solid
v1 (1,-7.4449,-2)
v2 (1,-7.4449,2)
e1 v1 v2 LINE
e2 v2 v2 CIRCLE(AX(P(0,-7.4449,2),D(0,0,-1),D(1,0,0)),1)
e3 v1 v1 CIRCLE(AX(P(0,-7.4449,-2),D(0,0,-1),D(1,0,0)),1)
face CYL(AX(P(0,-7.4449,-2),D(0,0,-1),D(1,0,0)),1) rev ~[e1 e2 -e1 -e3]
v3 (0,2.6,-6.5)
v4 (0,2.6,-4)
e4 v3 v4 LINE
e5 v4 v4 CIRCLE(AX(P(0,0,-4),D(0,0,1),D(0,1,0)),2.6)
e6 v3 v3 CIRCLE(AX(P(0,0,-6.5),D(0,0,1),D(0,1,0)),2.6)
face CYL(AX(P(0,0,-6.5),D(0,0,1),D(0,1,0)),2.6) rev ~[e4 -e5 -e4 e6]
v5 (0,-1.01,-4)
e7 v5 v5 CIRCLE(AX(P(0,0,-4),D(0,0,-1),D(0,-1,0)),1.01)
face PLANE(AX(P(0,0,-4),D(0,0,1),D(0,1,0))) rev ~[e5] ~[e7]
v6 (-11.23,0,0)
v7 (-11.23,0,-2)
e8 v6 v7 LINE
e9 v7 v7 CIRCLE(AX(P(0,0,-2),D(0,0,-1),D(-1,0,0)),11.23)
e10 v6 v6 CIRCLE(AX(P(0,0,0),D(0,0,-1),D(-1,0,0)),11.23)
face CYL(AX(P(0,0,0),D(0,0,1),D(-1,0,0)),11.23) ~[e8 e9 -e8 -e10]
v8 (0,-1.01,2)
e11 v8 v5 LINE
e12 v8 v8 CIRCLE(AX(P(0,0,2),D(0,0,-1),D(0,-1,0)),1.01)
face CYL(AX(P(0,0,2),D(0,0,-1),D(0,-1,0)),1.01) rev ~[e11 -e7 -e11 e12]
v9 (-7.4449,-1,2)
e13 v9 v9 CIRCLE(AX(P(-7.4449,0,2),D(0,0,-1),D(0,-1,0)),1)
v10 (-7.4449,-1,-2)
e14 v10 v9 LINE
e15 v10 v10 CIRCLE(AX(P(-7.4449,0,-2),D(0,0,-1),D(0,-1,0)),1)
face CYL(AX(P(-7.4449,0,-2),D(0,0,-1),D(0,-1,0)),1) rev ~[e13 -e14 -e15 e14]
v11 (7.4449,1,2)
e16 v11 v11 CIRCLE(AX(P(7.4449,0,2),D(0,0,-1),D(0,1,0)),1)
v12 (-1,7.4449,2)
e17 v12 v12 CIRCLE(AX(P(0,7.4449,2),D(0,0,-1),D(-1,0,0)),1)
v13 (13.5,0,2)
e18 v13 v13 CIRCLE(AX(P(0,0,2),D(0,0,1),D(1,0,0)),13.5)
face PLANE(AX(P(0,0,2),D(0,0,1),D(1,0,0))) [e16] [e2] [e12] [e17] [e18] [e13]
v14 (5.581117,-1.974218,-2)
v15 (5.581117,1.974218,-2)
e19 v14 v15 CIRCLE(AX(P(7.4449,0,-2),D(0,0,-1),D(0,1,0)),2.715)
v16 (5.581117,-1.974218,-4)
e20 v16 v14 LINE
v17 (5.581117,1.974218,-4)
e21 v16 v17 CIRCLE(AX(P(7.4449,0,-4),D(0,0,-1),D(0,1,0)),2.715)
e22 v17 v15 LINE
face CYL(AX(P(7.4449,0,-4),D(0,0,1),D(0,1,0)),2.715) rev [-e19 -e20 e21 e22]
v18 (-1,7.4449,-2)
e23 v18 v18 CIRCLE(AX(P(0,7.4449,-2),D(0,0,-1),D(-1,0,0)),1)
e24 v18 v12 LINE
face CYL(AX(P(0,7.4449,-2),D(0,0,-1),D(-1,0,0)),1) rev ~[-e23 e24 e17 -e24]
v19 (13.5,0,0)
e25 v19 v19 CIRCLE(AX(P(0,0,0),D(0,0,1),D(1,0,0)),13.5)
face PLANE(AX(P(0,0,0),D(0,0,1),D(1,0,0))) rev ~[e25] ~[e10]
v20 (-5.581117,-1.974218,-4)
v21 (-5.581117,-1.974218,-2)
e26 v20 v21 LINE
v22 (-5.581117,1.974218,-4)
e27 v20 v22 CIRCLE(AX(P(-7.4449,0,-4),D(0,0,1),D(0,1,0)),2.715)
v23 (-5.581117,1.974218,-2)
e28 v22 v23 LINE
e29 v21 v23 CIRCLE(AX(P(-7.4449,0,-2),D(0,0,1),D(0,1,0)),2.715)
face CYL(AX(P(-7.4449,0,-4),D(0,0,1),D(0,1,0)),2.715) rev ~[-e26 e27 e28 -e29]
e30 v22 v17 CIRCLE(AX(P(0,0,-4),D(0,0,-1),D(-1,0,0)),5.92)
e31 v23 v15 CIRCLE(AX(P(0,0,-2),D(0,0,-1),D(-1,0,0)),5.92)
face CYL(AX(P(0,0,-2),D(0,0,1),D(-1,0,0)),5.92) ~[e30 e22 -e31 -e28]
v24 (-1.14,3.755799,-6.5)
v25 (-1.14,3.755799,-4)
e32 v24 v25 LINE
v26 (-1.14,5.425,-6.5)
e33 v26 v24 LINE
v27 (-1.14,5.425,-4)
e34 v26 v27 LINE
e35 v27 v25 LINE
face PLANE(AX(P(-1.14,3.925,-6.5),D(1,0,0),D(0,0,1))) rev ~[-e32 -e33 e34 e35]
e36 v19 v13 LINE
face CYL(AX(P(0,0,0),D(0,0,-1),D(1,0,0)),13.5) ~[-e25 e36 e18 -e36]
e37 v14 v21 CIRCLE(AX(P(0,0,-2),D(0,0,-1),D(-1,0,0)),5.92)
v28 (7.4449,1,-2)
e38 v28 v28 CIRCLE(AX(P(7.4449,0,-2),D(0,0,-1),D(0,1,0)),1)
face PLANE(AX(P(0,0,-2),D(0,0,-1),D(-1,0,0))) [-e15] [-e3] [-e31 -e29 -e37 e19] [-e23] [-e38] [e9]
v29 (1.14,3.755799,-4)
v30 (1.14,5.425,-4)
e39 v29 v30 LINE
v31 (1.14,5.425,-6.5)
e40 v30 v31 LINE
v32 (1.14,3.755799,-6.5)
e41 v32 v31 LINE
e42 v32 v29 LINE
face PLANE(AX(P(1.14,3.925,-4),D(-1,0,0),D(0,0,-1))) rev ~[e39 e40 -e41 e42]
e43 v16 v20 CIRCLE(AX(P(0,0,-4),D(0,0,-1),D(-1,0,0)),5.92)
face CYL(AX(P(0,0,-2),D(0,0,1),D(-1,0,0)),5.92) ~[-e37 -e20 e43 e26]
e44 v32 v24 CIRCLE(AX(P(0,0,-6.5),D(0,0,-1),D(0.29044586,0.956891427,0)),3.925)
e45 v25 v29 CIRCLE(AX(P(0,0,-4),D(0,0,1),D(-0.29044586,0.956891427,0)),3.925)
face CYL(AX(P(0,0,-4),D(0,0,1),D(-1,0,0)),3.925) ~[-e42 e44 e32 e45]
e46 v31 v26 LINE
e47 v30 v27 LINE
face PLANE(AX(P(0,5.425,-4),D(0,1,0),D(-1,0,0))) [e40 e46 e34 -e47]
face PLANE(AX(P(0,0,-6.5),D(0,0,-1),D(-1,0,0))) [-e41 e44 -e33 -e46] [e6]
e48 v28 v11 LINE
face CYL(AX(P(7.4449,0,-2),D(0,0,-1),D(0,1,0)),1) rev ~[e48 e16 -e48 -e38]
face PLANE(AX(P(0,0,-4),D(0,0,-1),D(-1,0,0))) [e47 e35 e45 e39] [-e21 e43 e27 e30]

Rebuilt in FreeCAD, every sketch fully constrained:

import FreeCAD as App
import Part
import Sketcher

V = App.Vector
Q = App.Units.Quantity


def add_polygon(sketch, points):
    """Adds a closed chain of lines whose ends are joined by coincident constraints."""
    first, n = sketch.GeometryCount, len(points)
    for a, b in zip(points, points[1:] + points[:1]):
        sketch.addGeometry(Part.LineSegment(App.Vector(*a, 0), App.Vector(*b, 0)), False)
    for i in range(n):
        sketch.addConstraint(Sketcher.Constraint("Coincident", first + i, 2, first + (i + 1) % n, 1))

doc = App.newDocument("Part")
body = doc.addObject("PartDesign::Body", "Body")

sketch1 = body.newObject("Sketcher::SketchObject", "Sketch")
sketch1.AttachmentSupport = (doc.getObject("XY_Plane"), [""])
sketch1.MapMode = "FlatFace"
sketch1.addGeometry(Part.Circle(V(0, 0, 0), V(0, 0, 1), 14), False)
sketch1.addConstraint(Sketcher.Constraint("Coincident", 0, 3, -1, 1))
sketch1.addConstraint(Sketcher.Constraint("Diameter", 0, Q("27 mm")))
pad1 = body.newObject("PartDesign::Pad", "Pad")
pad1.Profile = sketch1
pad1.Length = 2

sketch2 = body.newObject("Sketcher::SketchObject", "Sketch001")
sketch2.AttachmentSupport = (doc.getObject("XY_Plane"), [""])
sketch2.MapMode = "FlatFace"
sketch2.addGeometry(Part.Circle(V(0, 0, 0), V(0, 0, 1), 11), False)
sketch2.addConstraint(Sketcher.Constraint("Coincident", 0, 3, -1, 1))
sketch2.addConstraint(Sketcher.Constraint("Diameter", 0, Q("22.46 mm")))
pad2 = body.newObject("PartDesign::Pad", "Pad001")
pad2.Profile = sketch2
pad2.Length = 2
pad2.Reversed = True

sketch3 = body.newObject("Sketcher::SketchObject", "Sketch002")
sketch3.AttachmentSupport = (doc.getObject("XY_Plane"), [""])
sketch3.MapMode = "FlatFace"
sketch3.AttachmentOffset = App.Placement(V(0, 0, -2), App.Rotation())
sketch3.addGeometry(Part.Circle(V(0, 0, 0), V(0, 0, 1), 6), False)
sketch3.addConstraint(Sketcher.Constraint("Coincident", 0, 3, -1, 1))
sketch3.addConstraint(Sketcher.Constraint("Diameter", 0, Q("11.84 mm")))
pad3 = body.newObject("PartDesign::Pad", "Pad002")
pad3.Profile = sketch3
pad3.Length = 2
pad3.Reversed = True

sketch4 = body.newObject("Sketcher::SketchObject", "Sketch003")
sketch4.AttachmentSupport = (doc.getObject("XY_Plane"), [""])
sketch4.MapMode = "FlatFace"
sketch4.AttachmentOffset = App.Placement(V(0, 0, -4), App.Rotation())
sketch4.addGeometry(Part.Circle(V(0, 0, 0), V(0, 0, 1), 3.9), False)
sketch4.addConstraint(Sketcher.Constraint("Coincident", 0, 3, -1, 1))
sketch4.addConstraint(Sketcher.Constraint("Diameter", 0, Q("7.85 mm")))
pad4 = body.newObject("PartDesign::Pad", "Pad003")
pad4.Profile = sketch4
pad4.Length = 2.5
pad4.Reversed = True

sketch5 = body.newObject("Sketcher::SketchObject", "Sketch004")
sketch5.AttachmentSupport = (doc.getObject("XY_Plane"), [""])
sketch5.MapMode = "FlatFace"
sketch5.AttachmentOffset = App.Placement(V(0, 0, 2), App.Rotation())
sketch5.addGeometry(Part.Circle(V(0, 0, 0), V(0, 0, 1), 1), False)
sketch5.addConstraint(Sketcher.Constraint("Coincident", 0, 3, -1, 1))
sketch5.addConstraint(Sketcher.Constraint("Diameter", 0, Q("2.02 mm")))
doc.recompute()
hole = body.newObject("PartDesign::Hole", "Hole")
hole.Profile = sketch5
hole.ThreadType = "None"
hole.Diameter = 2.02
hole.DepthType = "ThroughAll"

sketch6 = body.newObject("Sketcher::SketchObject", "Sketch005")
sketch6.AttachmentSupport = (doc.getObject("XY_Plane"), [""])
sketch6.MapMode = "FlatFace"
sketch6.AttachmentOffset = App.Placement(V(0, 0, -6.5), App.Rotation())
sketch6.addGeometry(Part.Circle(V(0, 0, 0), V(0, 0, 1), 2.6), False)
sketch6.addConstraint(Sketcher.Constraint("Coincident", 0, 3, -1, 1))
sketch6.addConstraint(Sketcher.Constraint("Diameter", 0, Q("5.2 mm")))
doc.recompute()
hole2 = body.newObject("PartDesign::Hole", "Hole001")
hole2.Profile = sketch6
hole2.ThreadType = "None"
hole2.Diameter = 5.2
hole2.DepthType = "Dimension"
hole2.Depth = 2.5
hole2.DrillPoint = "Flat"
hole2.Reversed = True

sketch7 = body.newObject("Sketcher::SketchObject", "Sketch006")
sketch7.AttachmentSupport = (doc.getObject("XZ_Plane"), [""])
sketch7.MapMode = "FlatFace"
sketch7.AttachmentOffset = App.Placement(V(0, 0, -3.925), App.Rotation())
add_polygon(sketch7, [(-1.1, -4), (1.1, -4), (1.1, -6.5), (-1.1, -6.5)])
sketch7.addConstraint(Sketcher.Constraint("Horizontal", 0))
sketch7.addConstraint(Sketcher.Constraint("Vertical", 1))
sketch7.addConstraint(Sketcher.Constraint("Horizontal", 2))
sketch7.addConstraint(Sketcher.Constraint("Vertical", 3))
sketch7.addConstraint(Sketcher.Constraint("DistanceY", 1, 2, 1, 1, Q("2.5 mm")))
sketch7.addConstraint(Sketcher.Constraint("DistanceX", 0, 1, 0, 2, Q("2.28 mm")))
sketch7.addConstraint(Sketcher.Constraint("DistanceX", -1, 1, 0, 2, Q("1.14 mm")))
sketch7.addConstraint(Sketcher.Constraint("DistanceY", 0, 2, -1, 1, Q("4 mm")))
pad5 = body.newObject("PartDesign::Pad", "Pad004")
pad5.Profile = sketch7
pad5.Type = "TwoLengths"
pad5.Length = 1.5
pad5.Length2 = 1
pad5.Reversed = True

sketch8 = body.newObject("Sketcher::SketchObject", "Sketch007")
sketch8.AttachmentSupport = (doc.getObject("XY_Plane"), [""])
sketch8.MapMode = "FlatFace"
sketch8.AttachmentOffset = App.Placement(V(0, 0, -2), App.Rotation())
sketch8.addGeometry(Part.Circle(V(0, 7.4, 0), V(0, 0, 1), 1), False)
sketch8.addConstraint(Sketcher.Constraint("PointOnObject", 0, 3, -2))
sketch8.addConstraint(Sketcher.Constraint("Diameter", 0, Q("2 mm")))
sketch8.addConstraint(Sketcher.Constraint("DistanceY", -1, 1, 0, 3, Q("7.445 mm")))
pocket1 = body.newObject("PartDesign::Pocket", "Pocket")
pocket1.Profile = sketch8
pocket1.Length = 6.5
pocket1.Reversed = True
doc.recompute()

polarpattern = body.newObject("PartDesign::PolarPattern", "PolarPattern")
polarpattern.Originals = [pocket1]
polarpattern.Axis = (doc.getObject("Z_Axis"), [""])
polarpattern.Angle = 360
polarpattern.Occurrences = 4
body.Tip = polarpattern

sketch9 = body.newObject("Sketcher::SketchObject", "Sketch008")
sketch9.AttachmentSupport = (doc.getObject("XY_Plane"), [""])
sketch9.MapMode = "FlatFace"
sketch9.AttachmentOffset = App.Placement(V(0, 0, -4), App.Rotation())
sketch9.addGeometry(Part.Circle(V(-7.4, 0, 0), V(0, 0, 1), 2.7), False)
sketch9.addConstraint(Sketcher.Constraint("PointOnObject", 0, 3, -1))
sketch9.addConstraint(Sketcher.Constraint("Diameter", 0, Q("5.43 mm")))
sketch9.addConstraint(Sketcher.Constraint("DistanceX", 0, 3, -1, 1, Q("7.445 mm")))
doc.recompute()
hole3 = body.newObject("PartDesign::Hole", "Hole002")
hole3.Profile = sketch9
hole3.ThreadType = "None"
hole3.Diameter = 5.43
hole3.DepthType = "Dimension"
hole3.Depth = 2
hole3.DrillPoint = "Flat"
hole3.Reversed = True
doc.recompute()

mirrored = body.newObject("PartDesign::Mirrored", "Mirrored")
mirrored.Originals = [hole3]
mirrored.MirrorPlane = (doc.getObject("YZ_Plane"), [""])
body.Tip = mirrored

doc.recompute()
